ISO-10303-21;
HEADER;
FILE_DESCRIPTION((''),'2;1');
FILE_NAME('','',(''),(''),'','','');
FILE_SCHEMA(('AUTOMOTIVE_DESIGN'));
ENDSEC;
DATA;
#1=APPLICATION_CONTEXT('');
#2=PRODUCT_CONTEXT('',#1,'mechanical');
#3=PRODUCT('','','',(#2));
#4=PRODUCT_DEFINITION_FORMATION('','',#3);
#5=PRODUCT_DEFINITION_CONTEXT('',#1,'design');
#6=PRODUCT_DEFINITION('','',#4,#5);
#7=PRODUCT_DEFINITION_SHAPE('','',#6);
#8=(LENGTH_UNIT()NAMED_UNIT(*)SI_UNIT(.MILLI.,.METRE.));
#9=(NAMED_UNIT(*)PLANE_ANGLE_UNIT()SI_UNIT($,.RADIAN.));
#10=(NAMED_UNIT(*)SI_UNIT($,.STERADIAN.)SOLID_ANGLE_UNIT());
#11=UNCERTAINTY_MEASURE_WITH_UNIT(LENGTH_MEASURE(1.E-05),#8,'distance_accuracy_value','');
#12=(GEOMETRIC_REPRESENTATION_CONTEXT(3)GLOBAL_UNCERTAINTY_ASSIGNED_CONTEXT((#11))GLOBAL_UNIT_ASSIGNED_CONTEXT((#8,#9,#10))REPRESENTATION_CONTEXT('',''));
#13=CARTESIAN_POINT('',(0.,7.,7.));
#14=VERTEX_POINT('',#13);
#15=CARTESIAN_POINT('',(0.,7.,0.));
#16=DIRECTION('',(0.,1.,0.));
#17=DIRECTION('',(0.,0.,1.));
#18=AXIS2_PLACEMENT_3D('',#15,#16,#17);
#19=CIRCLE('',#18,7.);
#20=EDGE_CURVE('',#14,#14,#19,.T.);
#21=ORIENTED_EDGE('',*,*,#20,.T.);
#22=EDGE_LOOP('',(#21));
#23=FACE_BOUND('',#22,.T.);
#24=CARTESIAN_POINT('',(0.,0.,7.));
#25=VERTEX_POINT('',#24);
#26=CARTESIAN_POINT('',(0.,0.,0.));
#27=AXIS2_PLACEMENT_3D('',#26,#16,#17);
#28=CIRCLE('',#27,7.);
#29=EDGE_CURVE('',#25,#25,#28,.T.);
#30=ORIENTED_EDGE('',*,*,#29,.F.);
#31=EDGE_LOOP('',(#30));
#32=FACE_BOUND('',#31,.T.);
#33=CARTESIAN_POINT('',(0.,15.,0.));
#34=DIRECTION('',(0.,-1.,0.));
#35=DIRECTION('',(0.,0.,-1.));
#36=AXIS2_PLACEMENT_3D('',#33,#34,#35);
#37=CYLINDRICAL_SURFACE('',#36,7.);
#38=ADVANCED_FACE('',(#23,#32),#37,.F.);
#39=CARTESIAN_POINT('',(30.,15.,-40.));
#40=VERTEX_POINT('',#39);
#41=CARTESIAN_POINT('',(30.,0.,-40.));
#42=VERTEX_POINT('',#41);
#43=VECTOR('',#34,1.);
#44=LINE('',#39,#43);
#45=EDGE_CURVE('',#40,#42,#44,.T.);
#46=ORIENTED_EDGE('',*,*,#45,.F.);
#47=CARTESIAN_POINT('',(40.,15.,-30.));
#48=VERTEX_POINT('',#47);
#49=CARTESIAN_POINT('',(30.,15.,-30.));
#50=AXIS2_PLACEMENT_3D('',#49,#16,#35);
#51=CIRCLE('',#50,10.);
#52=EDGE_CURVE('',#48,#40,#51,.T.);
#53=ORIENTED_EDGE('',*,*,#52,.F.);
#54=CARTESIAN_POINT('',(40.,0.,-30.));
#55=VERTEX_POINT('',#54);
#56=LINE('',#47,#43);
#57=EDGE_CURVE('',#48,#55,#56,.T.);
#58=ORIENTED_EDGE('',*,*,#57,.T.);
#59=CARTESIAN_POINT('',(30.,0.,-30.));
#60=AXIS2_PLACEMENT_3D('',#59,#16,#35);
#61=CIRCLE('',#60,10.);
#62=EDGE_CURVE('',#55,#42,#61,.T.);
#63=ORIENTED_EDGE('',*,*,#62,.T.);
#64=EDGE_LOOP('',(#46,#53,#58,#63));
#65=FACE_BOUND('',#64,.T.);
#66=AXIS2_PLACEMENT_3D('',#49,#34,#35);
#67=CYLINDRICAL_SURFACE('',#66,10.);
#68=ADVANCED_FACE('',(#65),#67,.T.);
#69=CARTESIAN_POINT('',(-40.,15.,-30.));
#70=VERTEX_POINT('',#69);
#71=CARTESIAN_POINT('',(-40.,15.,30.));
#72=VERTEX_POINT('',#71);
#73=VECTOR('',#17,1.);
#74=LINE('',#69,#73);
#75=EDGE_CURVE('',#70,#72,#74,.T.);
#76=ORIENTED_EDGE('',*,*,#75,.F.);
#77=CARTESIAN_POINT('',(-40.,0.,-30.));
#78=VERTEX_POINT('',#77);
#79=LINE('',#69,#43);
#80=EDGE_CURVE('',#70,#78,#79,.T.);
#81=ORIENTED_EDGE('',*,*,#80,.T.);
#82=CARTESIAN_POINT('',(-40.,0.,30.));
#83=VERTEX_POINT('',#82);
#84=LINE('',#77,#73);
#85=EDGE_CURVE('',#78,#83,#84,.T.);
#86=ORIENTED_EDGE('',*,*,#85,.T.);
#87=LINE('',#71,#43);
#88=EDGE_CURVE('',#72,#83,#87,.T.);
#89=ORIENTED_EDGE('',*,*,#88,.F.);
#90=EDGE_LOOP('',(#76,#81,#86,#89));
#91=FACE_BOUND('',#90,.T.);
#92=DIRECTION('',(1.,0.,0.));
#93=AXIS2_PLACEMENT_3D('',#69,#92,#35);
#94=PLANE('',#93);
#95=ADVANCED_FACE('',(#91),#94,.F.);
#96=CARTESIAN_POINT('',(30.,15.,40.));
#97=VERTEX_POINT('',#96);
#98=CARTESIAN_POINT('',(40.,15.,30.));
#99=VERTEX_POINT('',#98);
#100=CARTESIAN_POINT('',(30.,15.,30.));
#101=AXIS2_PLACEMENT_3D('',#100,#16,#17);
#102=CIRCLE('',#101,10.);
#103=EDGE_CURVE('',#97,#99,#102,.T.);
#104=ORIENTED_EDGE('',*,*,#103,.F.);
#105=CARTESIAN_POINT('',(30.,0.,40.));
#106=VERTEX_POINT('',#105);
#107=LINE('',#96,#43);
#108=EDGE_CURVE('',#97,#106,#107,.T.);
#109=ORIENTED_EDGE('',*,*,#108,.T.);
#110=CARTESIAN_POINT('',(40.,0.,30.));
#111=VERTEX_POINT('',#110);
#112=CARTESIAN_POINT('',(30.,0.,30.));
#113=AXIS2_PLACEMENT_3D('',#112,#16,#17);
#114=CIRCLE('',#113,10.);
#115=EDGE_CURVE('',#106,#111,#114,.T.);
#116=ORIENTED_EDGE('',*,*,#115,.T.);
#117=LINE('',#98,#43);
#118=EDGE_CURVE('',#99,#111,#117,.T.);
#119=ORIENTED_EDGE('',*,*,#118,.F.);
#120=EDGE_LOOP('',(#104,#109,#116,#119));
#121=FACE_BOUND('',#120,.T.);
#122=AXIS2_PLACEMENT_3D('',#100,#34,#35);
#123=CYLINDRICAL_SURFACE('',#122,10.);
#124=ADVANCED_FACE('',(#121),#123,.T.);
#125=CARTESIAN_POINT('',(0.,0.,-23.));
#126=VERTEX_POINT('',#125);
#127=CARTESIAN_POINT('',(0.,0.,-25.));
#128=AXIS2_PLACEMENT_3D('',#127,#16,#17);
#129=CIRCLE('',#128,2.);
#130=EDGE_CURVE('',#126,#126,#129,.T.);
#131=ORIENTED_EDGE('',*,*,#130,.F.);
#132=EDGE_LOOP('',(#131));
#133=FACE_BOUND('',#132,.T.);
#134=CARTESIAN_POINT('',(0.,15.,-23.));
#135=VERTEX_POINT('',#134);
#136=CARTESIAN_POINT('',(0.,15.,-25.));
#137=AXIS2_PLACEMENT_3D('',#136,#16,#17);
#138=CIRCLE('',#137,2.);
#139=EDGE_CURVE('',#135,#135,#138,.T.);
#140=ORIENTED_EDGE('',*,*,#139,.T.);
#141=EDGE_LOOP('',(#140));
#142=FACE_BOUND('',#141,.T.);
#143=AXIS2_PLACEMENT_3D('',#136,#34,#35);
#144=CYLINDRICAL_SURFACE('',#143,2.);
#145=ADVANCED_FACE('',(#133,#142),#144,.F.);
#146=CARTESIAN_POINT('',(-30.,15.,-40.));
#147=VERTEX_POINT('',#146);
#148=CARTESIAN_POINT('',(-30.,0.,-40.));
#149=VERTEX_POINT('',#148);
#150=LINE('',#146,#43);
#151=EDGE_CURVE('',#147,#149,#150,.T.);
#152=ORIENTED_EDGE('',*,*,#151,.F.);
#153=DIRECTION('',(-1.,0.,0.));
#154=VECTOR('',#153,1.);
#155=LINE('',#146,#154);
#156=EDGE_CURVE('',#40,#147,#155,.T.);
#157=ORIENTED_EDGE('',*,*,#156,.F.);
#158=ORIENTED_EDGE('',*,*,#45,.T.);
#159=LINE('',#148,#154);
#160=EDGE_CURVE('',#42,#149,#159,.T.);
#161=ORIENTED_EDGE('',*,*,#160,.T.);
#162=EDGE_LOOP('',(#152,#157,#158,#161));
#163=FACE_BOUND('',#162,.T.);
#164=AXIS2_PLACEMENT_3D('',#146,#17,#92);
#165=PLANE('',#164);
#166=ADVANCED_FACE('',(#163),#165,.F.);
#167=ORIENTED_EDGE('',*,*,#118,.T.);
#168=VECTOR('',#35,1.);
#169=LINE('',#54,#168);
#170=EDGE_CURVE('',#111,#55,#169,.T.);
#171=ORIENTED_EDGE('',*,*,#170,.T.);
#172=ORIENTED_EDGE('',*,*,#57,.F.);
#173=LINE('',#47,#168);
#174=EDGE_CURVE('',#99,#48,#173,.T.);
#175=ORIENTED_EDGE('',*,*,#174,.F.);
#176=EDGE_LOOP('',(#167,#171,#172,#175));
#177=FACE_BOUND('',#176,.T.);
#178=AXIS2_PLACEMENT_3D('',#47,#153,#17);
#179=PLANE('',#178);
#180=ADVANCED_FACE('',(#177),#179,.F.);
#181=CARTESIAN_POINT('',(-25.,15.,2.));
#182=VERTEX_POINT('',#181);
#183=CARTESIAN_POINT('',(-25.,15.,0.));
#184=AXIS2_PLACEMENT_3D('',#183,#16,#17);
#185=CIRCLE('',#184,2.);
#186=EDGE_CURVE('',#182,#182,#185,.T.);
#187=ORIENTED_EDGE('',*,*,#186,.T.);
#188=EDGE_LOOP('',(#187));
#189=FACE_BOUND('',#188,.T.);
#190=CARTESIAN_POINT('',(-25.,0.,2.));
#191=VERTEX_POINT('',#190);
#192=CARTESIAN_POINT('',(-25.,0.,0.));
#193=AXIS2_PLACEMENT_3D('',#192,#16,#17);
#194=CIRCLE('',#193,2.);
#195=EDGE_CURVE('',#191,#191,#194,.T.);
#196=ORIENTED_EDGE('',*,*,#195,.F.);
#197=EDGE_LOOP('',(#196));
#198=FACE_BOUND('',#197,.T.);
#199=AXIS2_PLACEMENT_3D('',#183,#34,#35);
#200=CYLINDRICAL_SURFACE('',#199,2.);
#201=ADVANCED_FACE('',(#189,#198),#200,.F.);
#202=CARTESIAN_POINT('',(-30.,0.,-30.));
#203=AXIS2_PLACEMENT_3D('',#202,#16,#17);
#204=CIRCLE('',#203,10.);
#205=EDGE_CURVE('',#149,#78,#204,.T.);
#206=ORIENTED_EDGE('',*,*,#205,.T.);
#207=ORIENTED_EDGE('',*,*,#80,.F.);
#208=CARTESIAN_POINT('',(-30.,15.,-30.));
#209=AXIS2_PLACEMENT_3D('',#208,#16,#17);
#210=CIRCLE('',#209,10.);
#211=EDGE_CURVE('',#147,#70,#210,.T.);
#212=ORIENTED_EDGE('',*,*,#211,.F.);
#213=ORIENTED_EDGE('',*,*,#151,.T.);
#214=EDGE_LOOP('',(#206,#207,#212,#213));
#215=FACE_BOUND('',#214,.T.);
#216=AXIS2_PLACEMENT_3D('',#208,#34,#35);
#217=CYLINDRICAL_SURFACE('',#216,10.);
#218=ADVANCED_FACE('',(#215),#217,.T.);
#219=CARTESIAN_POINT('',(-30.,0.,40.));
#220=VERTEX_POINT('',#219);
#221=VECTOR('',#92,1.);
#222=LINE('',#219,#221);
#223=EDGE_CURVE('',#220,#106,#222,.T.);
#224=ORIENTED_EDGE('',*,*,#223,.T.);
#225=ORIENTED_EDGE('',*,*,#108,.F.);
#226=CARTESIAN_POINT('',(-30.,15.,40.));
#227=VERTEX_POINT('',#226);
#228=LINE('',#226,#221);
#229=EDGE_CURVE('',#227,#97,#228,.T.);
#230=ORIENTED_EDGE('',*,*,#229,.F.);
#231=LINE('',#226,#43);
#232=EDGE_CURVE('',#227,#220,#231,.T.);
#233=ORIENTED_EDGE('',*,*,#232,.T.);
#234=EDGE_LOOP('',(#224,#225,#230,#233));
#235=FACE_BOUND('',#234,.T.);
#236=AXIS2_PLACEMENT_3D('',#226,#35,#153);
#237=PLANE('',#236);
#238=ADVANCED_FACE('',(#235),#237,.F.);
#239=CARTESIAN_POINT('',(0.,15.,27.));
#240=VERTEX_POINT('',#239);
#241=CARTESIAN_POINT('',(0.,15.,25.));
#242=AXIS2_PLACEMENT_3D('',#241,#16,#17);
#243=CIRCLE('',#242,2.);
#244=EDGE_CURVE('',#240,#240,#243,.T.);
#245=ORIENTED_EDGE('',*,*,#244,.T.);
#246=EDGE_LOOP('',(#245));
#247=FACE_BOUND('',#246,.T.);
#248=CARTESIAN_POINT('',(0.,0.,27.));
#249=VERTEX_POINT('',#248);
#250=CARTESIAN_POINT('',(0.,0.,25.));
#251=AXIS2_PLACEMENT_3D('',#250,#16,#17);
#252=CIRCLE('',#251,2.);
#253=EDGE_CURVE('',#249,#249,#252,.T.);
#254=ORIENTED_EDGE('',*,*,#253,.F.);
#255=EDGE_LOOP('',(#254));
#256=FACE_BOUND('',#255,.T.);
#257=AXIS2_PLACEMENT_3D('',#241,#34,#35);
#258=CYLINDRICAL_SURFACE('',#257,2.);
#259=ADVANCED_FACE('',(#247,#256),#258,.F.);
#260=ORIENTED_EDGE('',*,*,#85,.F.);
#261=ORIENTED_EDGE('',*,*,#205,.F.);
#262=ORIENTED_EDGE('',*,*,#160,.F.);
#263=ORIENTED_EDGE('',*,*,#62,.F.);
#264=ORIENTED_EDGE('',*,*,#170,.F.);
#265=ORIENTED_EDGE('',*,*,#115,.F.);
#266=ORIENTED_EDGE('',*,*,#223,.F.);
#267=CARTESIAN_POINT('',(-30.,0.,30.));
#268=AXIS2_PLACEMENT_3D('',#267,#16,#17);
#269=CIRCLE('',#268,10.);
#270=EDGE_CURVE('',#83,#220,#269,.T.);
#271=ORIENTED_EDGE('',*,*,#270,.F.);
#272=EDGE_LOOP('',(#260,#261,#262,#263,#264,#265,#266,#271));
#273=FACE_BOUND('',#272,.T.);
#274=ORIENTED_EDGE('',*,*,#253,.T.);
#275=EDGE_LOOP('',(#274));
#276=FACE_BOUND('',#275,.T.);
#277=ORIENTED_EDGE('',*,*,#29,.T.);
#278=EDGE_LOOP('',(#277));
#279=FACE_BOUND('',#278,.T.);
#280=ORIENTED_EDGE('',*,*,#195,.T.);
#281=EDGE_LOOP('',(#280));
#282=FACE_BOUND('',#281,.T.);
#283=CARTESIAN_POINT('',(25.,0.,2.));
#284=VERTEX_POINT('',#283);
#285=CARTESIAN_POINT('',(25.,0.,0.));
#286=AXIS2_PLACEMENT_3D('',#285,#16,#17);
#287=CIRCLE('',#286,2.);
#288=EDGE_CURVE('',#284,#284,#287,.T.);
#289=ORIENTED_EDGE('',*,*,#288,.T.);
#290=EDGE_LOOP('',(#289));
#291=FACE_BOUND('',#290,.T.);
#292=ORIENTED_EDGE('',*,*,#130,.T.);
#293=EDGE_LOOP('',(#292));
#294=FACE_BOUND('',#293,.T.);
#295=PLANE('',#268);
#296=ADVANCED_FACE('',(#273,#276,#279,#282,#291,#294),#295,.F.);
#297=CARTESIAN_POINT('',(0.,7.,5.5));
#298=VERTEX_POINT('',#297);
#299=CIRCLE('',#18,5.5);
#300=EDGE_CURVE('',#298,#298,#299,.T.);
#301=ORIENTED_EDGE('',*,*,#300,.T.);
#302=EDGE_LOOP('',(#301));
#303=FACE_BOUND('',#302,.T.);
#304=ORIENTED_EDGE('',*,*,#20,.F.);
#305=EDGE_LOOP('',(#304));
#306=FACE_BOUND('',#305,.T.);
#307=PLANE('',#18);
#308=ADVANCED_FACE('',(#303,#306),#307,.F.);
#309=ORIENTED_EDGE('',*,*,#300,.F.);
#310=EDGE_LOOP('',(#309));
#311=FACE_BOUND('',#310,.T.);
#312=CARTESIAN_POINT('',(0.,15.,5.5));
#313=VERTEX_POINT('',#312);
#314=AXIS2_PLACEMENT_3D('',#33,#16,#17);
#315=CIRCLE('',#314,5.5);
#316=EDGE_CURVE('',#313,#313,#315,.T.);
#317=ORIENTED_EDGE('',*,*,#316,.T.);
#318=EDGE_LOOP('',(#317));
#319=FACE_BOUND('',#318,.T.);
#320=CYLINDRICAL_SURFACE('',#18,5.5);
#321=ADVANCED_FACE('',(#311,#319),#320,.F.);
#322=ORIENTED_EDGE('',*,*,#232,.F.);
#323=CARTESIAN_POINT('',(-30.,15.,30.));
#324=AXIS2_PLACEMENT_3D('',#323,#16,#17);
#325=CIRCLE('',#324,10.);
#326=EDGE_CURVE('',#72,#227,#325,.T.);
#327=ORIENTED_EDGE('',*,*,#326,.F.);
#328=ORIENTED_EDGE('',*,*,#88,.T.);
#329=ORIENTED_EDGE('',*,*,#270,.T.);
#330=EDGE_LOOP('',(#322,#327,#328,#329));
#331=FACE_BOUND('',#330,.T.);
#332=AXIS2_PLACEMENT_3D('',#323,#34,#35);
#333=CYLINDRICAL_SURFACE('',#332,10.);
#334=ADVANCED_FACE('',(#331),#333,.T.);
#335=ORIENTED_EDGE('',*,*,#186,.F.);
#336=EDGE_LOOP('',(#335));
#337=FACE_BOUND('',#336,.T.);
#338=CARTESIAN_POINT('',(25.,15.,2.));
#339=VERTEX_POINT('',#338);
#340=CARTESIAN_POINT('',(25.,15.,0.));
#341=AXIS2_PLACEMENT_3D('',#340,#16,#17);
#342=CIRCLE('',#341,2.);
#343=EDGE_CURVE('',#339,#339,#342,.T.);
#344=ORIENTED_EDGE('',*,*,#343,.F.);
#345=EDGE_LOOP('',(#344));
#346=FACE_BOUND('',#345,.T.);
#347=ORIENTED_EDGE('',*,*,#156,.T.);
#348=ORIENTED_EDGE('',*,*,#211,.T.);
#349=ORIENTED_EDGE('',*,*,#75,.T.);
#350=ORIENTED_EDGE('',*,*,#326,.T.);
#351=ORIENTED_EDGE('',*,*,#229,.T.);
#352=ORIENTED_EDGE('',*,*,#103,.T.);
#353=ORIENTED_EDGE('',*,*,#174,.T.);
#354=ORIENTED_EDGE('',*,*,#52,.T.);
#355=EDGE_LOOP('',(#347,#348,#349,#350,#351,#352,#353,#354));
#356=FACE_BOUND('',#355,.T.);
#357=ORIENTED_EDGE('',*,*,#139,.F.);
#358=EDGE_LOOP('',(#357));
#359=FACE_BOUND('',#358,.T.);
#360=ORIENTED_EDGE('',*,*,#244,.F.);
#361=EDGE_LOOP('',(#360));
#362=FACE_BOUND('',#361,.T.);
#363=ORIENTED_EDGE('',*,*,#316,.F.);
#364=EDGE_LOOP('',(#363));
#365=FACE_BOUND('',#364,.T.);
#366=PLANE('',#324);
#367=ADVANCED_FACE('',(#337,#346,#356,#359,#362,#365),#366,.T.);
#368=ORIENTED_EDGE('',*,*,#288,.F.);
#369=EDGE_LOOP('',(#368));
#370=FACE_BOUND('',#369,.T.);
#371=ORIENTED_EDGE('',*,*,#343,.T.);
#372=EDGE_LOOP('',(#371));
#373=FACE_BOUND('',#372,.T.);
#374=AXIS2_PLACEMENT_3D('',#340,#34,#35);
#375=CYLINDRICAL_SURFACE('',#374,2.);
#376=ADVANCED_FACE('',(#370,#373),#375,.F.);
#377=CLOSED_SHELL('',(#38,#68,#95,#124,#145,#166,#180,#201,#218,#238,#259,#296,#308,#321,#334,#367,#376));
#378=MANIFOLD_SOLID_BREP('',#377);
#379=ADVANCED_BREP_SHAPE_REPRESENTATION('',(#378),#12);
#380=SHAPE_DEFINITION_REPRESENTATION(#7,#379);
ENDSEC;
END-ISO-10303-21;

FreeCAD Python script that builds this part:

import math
import FreeCAD as App
import Part
import Sketcher

doc = App.newDocument("Part")
params = doc.addObject("Spreadsheet::Sheet", "Params")
for row, (alias, value) in enumerate([
    ("sketch1_diameter", "4 mm"),
    ("sketch1_diameter2", "14 mm"),
    ("sketch1_radius", "10 mm"),
    ("sketch1_width", "60 mm"),
    ("pad1_length", "15 mm"),
    ("sketch2_diameter", "14 mm"),
    ("sketch2_diameter2", "11 mm"),
    ("pad2_length", "8 mm"),
], start=1):
    params.set(f"A{row}", alias)
    params.set(f"B{row}", "=" + value)
    params.setAlias(f"B{row}", alias)

body = doc.addObject("PartDesign::Body", "Body")

# Sketch on XZ plane
sketch1 = body.newObject("Sketcher::SketchObject", "Sketch")
sketch1.AttachmentSupport = (doc.getObject("XZ_Plane"), [""])
sketch1.MapMode = "FlatFace"
sketch1.addGeometry([
    Part.LineSegment(App.Vector(30, -40, 0), App.Vector(-30, -40, 0)),  # 0
    Part.ArcOfCircle(Part.Circle(App.Vector(-30, -30, 0), App.Vector(0, 0, 1), 10), math.radians(180), math.radians(270)),  # 1
    Part.LineSegment(App.Vector(-40, -30, 0), App.Vector(-40, 30, 0)),  # 2
    Part.ArcOfCircle(Part.Circle(App.Vector(-30, 30, 0), App.Vector(0, 0, 1), 10), math.radians(90), math.radians(180)),  # 3
    Part.LineSegment(App.Vector(-30, 40, 0), App.Vector(30, 40, 0)),  # 4
    Part.ArcOfCircle(Part.Circle(App.Vector(30, 30, 0), App.Vector(0, 0, 1), 10), math.radians(0), math.radians(90)),  # 5
    Part.LineSegment(App.Vector(40, 30, 0), App.Vector(40, -30, 0)),  # 6
    Part.ArcOfCircle(Part.Circle(App.Vector(30, -30, 0), App.Vector(0, 0, 1), 10), math.radians(-90), math.radians(0)),  # 7
    Part.Circle(App.Vector(0, 25, 0), App.Vector(0, 0, 1), 2),  # 8
    Part.Circle(App.Vector(25, 0, 0), App.Vector(0, 0, 1), 2),  # 9
    Part.Circle(App.Vector(0, 0, 0), App.Vector(0, 0, 1), 7),  # 10
    Part.Circle(App.Vector(-25, 0, 0), App.Vector(0, 0, 1), 2),  # 11
    Part.Circle(App.Vector(0, -25, 0), App.Vector(0, 0, 1), 2),  # 12
], False)
sketch1.addConstraint([
    Sketcher.Constraint("Tangent", 0, 2, 1, 2),
    Sketcher.Constraint("Tangent", 1, 1, 2, 1),
    Sketcher.Constraint("Tangent", 2, 2, 3, 2),
    Sketcher.Constraint("Tangent", 3, 1, 4, 1),
    Sketcher.Constraint("Tangent", 4, 2, 5, 2),
    Sketcher.Constraint("Tangent", 5, 1, 6, 1),
    Sketcher.Constraint("Tangent", 6, 2, 7, 2),
    Sketcher.Constraint("Tangent", 7, 1, 0, 1),
    Sketcher.Constraint("Horizontal", 0),
    Sketcher.Constraint("Vertical", 2),
    Sketcher.Constraint("Horizontal", 4),
    Sketcher.Constraint("Vertical", 6),
    Sketcher.Constraint("Coincident", 10, 3, -1, 1),
    Sketcher.Constraint("Equal", 1, 3),
    Sketcher.Constraint("Equal", 3, 5),
    Sketcher.Constraint("Equal", 5, 7),
    Sketcher.Constraint("Equal", 8, 9),
    Sketcher.Constraint("Equal", 9, 11),
    Sketcher.Constraint("Equal", 11, 12),
    Sketcher.Constraint("Symmetric", 1, 3, 5, 3, -1, 1),
    Sketcher.Constraint("Symmetric", 9, 3, 11, 3, -1, 1),
    Sketcher.Constraint("Symmetric", 8, 3, 12, 3, -1, 1),
    Sketcher.Constraint("PointOnObject", 8, 3, -2),
    Sketcher.Constraint("PointOnObject", 9, 3, -1),
    Sketcher.Constraint("Equal", 4, 2),
    Sketcher.Constraint("Diameter", 8, 4.0),
    Sketcher.Constraint("Diameter", 10, 14.0),
    Sketcher.Constraint("Radius", 1, 10.0),
    Sketcher.Constraint("DistanceX", 0, 2, 0, 1, 60.0),
    Sketcher.Constraint("DistanceY", -1, 1, 8, 3, 25.0),
    Sketcher.Constraint("DistanceX", -1, 1, 9, 3, 25.0),
])
sketch1.setExpression("Constraints[25]", "Params.sketch1_diameter")
sketch1.setExpression("Constraints[26]", "Params.sketch1_diameter2")
sketch1.setExpression("Constraints[27]", "Params.sketch1_radius")
sketch1.setExpression("Constraints[28]", "Params.sketch1_width")
pad1 = body.newObject("PartDesign::Pad", "Pad")
pad1.Profile = sketch1
pad1.setExpression("Length", "Params.pad1_length")
pad1.Reversed = True

# Sketch on XZ plane
sketch2 = body.newObject("Sketcher::SketchObject", "Sketch001")
sketch2.AttachmentSupport = (doc.getObject("XZ_Plane"), [""])
sketch2.MapMode = "FlatFace"
sketch2.AttachmentOffset = App.Placement(App.Vector(0, 0, -7), App.Rotation())
sketch2.addGeometry([
    Part.Circle(App.Vector(0, 0, 0), App.Vector(0, 0, 1), 7),
    Part.Circle(App.Vector(0, 0, 0), App.Vector(0, 0, 1), 6),
], False)
sketch2.addConstraint([
    Sketcher.Constraint("Coincident", 0, 3, -1, 1),
    Sketcher.Constraint("Coincident", 1, 3, -1, 1),
    Sketcher.Constraint("Diameter", 0, 14.0),
    Sketcher.Constraint("Diameter", 1, 11.0),
])
sketch2.setExpression("Constraints[2]", "Params.sketch2_diameter")
sketch2.setExpression("Constraints[3]", "Params.sketch2_diameter2")
pad2 = body.newObject("PartDesign::Pad", "Pad001")
pad2.Profile = sketch2
pad2.setExpression("Length", "Params.pad2_length")
pad2.Reversed = True

doc.recompute()
